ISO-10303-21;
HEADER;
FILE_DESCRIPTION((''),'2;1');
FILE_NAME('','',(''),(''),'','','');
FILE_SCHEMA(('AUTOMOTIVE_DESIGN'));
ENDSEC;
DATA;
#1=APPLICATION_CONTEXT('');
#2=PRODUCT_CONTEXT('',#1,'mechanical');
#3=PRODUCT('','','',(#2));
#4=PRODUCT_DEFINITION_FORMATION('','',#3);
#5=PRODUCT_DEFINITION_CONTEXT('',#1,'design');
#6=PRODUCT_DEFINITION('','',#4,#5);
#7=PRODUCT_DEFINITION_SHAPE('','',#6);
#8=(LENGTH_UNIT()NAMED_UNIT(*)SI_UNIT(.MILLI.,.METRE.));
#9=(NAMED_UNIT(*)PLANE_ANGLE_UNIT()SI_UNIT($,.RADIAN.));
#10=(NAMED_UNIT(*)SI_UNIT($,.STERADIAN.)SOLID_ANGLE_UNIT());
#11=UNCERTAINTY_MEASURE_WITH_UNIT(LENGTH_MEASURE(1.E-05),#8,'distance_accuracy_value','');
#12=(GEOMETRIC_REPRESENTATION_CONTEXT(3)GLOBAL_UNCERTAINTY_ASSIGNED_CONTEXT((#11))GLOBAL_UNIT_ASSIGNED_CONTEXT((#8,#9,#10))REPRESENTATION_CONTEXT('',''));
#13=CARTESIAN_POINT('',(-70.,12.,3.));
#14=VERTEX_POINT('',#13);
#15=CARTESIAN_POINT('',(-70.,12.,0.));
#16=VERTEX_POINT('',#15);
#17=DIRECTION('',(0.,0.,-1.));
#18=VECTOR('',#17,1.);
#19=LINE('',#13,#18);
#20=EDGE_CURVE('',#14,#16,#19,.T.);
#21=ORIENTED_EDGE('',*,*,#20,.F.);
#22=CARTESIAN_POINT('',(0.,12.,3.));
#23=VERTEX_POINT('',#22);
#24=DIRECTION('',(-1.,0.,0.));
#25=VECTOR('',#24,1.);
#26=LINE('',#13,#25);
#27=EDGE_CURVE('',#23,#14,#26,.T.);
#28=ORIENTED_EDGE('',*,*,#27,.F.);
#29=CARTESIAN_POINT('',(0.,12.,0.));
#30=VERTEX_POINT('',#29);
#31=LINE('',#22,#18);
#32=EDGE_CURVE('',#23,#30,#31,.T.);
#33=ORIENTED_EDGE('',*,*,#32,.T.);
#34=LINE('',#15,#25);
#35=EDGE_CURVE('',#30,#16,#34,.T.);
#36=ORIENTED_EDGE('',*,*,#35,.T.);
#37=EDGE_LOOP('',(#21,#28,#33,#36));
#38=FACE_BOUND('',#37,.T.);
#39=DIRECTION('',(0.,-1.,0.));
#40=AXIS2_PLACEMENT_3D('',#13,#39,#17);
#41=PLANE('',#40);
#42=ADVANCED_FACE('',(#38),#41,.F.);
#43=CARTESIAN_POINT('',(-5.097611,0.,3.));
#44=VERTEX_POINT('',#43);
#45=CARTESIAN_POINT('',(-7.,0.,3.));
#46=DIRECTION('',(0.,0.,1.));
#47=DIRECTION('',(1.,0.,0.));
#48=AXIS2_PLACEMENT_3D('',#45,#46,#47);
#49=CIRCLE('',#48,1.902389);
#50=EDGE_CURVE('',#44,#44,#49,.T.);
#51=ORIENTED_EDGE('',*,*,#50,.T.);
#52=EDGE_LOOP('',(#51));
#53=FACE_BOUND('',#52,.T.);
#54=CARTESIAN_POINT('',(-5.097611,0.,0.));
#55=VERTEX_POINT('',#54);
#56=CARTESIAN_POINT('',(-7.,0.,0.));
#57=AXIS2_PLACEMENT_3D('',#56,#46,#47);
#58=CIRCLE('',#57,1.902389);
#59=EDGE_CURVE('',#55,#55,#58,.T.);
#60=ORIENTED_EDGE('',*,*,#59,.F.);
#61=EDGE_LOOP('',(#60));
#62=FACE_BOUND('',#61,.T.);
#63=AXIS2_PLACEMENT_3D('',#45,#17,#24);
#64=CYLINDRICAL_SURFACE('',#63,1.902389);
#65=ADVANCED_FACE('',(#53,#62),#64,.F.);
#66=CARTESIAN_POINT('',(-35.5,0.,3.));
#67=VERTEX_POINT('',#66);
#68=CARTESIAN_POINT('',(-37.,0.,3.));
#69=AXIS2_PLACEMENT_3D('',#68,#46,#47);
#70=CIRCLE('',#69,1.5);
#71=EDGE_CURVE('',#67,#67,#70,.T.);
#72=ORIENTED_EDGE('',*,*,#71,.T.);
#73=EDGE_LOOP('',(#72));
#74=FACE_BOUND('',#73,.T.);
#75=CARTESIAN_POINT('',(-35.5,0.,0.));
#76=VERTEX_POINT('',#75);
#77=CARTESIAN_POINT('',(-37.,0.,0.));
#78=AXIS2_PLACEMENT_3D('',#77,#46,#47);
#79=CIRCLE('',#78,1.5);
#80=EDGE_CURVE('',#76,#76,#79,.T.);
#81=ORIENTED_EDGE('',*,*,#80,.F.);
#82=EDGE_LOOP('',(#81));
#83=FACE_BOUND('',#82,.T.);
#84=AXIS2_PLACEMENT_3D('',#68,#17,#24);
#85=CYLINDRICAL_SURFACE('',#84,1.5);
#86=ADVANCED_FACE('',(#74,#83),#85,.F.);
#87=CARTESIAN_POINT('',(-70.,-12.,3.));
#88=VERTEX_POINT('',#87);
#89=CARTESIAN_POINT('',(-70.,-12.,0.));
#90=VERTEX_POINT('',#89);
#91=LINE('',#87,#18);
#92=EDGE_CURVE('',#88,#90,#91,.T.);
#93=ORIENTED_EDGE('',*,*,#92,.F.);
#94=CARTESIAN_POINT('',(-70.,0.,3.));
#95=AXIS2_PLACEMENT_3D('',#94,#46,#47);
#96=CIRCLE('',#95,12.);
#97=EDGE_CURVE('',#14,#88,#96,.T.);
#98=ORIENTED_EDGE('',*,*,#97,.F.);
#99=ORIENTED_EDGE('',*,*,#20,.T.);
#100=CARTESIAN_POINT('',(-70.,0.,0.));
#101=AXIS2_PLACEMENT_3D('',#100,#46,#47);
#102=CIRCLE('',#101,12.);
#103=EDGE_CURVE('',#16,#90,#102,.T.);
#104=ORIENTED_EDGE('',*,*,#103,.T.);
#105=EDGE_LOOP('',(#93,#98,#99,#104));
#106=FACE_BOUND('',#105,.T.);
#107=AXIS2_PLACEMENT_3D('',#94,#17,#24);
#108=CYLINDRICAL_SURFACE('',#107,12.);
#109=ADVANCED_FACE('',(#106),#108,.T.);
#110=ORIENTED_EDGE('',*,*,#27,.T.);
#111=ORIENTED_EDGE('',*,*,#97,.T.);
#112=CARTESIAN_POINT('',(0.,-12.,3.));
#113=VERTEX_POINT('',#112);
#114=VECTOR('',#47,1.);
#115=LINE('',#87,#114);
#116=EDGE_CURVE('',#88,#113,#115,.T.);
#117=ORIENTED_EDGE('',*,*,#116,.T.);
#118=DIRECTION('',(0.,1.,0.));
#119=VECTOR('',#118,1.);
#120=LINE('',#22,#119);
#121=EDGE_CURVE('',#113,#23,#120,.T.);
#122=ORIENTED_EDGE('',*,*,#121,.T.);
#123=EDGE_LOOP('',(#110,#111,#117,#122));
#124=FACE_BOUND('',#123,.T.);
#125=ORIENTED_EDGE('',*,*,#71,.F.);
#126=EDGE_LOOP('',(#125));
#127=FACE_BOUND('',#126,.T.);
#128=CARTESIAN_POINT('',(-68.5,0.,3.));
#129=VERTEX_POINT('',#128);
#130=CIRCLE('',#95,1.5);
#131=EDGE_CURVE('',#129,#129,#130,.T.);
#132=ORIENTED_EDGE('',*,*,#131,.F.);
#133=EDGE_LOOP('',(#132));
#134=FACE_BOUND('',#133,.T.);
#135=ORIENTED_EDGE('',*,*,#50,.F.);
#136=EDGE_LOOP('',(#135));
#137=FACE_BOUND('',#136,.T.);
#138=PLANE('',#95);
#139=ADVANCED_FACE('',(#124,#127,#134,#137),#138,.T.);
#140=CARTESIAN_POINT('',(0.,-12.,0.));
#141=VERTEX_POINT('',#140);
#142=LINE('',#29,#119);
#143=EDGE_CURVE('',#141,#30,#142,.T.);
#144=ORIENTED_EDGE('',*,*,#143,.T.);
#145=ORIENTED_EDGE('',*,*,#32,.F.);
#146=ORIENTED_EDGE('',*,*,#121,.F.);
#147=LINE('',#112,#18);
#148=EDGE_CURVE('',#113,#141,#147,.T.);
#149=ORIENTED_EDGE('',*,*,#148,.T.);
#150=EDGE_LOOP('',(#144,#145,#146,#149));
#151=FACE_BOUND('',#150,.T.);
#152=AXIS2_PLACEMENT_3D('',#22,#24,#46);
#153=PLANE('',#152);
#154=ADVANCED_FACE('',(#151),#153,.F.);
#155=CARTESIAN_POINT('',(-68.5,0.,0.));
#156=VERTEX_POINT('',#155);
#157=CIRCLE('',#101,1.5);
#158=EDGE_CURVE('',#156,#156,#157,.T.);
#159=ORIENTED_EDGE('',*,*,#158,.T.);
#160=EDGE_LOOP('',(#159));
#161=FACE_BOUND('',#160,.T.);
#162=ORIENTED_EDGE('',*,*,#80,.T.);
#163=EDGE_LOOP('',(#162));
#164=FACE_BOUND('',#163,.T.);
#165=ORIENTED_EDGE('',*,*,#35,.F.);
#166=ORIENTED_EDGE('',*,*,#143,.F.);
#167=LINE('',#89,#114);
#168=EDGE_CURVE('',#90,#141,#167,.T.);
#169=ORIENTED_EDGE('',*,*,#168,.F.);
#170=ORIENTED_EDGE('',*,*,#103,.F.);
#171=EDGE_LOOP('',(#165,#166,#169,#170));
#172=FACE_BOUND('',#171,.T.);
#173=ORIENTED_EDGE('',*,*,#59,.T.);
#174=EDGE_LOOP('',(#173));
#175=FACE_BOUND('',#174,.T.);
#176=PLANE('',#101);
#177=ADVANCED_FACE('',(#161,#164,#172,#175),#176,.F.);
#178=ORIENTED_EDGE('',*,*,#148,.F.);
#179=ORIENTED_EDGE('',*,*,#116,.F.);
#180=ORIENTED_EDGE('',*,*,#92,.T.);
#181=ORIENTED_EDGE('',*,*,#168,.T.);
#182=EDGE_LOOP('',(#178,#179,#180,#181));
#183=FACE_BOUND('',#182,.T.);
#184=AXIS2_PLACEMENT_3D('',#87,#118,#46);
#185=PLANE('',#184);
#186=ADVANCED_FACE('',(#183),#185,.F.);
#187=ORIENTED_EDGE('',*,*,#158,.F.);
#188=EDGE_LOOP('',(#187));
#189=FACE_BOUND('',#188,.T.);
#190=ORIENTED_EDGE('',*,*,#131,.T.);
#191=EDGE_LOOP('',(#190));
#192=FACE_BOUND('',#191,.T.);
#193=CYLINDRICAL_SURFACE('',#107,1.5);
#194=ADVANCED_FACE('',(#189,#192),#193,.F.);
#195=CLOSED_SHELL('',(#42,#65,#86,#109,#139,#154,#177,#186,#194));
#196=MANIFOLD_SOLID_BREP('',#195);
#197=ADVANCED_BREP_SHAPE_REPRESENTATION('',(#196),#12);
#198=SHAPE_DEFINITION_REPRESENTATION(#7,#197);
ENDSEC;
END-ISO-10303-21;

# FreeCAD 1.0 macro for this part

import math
import FreeCAD as App
import Part
import Sketcher
from FreeCAD import Vector

doc = App.newDocument("Part")
body = doc.addObject("PartDesign::Body", "Body")

# Sketch on XY plane
sketch1 = body.newObject("Sketcher::SketchObject", "Sketch")
sketch1.AttachmentSupport = (doc.getObject("XY_Plane"), [""])
sketch1.MapMode = "FlatFace"
sketch1.addGeometry([
    Part.LineSegment(Vector(0, 12, 0), Vector(-70, 12, 0)),  # 0
    Part.ArcOfCircle(Part.Circle(Vector(-70, 0, 0), Vector(0, 0, 1), 12), math.radians(90), math.radians(270)),  # 1
    Part.LineSegment(Vector(-70, -12, 0), Vector(0, -12, 0)),  # 2
    Part.LineSegment(Vector(0, -12, 0), Vector(0, 12, 0)),  # 3
    Part.Circle(Vector(-7, 0, 0), Vector(0, 0, 1), 1.9),  # 4
    Part.Circle(Vector(-37, 0, 0), Vector(0, 0, 1), 1.5),  # 5
    Part.Circle(Vector(-70, 0, 0), Vector(0, 0, 1), 1.5),  # 6
], False)
sketch1.addConstraint([
    Sketcher.Constraint("Tangent", 0, 2, 1, 1),
    Sketcher.Constraint("Tangent", 1, 2, 2, 1),
    Sketcher.Constraint("Coincident", 2, 2, 3, 1),
    Sketcher.Constraint("Coincident", 3, 2, 0, 1),
    Sketcher.Constraint("Horizontal", 0),
    Sketcher.Constraint("Horizontal", 2),
    Sketcher.Constraint("Vertical", 3),
    Sketcher.Constraint("Coincident", 6, 3, 1, 3),
    Sketcher.Constraint("Equal", 5, 6),
    Sketcher.Constraint("Symmetric", 2, 2, 3, 2, -1, 1),
    Sketcher.Constraint("PointOnObject", 4, 3, -1),
    Sketcher.Constraint("PointOnObject", 5, 3, -1),
    Sketcher.Constraint("Diameter", 5, 3.0),
    Sketcher.Constraint("Radius", 1, 12.0),
    Sketcher.Constraint("DistanceX", 0, 2, 0, 1, 70.0),
    Sketcher.Constraint("DistanceX", 4, 3, -1, 1, 7.0),
    Sketcher.Constraint("DistanceX", 5, 3, -1, 1, 37.0),
    Sketcher.Constraint("Diameter", 4, 3.804778),
])
pad1 = body.newObject("PartDesign::Pad", "Pad")
pad1.Profile = sketch1
pad1.Length = 3

doc.recompute()
